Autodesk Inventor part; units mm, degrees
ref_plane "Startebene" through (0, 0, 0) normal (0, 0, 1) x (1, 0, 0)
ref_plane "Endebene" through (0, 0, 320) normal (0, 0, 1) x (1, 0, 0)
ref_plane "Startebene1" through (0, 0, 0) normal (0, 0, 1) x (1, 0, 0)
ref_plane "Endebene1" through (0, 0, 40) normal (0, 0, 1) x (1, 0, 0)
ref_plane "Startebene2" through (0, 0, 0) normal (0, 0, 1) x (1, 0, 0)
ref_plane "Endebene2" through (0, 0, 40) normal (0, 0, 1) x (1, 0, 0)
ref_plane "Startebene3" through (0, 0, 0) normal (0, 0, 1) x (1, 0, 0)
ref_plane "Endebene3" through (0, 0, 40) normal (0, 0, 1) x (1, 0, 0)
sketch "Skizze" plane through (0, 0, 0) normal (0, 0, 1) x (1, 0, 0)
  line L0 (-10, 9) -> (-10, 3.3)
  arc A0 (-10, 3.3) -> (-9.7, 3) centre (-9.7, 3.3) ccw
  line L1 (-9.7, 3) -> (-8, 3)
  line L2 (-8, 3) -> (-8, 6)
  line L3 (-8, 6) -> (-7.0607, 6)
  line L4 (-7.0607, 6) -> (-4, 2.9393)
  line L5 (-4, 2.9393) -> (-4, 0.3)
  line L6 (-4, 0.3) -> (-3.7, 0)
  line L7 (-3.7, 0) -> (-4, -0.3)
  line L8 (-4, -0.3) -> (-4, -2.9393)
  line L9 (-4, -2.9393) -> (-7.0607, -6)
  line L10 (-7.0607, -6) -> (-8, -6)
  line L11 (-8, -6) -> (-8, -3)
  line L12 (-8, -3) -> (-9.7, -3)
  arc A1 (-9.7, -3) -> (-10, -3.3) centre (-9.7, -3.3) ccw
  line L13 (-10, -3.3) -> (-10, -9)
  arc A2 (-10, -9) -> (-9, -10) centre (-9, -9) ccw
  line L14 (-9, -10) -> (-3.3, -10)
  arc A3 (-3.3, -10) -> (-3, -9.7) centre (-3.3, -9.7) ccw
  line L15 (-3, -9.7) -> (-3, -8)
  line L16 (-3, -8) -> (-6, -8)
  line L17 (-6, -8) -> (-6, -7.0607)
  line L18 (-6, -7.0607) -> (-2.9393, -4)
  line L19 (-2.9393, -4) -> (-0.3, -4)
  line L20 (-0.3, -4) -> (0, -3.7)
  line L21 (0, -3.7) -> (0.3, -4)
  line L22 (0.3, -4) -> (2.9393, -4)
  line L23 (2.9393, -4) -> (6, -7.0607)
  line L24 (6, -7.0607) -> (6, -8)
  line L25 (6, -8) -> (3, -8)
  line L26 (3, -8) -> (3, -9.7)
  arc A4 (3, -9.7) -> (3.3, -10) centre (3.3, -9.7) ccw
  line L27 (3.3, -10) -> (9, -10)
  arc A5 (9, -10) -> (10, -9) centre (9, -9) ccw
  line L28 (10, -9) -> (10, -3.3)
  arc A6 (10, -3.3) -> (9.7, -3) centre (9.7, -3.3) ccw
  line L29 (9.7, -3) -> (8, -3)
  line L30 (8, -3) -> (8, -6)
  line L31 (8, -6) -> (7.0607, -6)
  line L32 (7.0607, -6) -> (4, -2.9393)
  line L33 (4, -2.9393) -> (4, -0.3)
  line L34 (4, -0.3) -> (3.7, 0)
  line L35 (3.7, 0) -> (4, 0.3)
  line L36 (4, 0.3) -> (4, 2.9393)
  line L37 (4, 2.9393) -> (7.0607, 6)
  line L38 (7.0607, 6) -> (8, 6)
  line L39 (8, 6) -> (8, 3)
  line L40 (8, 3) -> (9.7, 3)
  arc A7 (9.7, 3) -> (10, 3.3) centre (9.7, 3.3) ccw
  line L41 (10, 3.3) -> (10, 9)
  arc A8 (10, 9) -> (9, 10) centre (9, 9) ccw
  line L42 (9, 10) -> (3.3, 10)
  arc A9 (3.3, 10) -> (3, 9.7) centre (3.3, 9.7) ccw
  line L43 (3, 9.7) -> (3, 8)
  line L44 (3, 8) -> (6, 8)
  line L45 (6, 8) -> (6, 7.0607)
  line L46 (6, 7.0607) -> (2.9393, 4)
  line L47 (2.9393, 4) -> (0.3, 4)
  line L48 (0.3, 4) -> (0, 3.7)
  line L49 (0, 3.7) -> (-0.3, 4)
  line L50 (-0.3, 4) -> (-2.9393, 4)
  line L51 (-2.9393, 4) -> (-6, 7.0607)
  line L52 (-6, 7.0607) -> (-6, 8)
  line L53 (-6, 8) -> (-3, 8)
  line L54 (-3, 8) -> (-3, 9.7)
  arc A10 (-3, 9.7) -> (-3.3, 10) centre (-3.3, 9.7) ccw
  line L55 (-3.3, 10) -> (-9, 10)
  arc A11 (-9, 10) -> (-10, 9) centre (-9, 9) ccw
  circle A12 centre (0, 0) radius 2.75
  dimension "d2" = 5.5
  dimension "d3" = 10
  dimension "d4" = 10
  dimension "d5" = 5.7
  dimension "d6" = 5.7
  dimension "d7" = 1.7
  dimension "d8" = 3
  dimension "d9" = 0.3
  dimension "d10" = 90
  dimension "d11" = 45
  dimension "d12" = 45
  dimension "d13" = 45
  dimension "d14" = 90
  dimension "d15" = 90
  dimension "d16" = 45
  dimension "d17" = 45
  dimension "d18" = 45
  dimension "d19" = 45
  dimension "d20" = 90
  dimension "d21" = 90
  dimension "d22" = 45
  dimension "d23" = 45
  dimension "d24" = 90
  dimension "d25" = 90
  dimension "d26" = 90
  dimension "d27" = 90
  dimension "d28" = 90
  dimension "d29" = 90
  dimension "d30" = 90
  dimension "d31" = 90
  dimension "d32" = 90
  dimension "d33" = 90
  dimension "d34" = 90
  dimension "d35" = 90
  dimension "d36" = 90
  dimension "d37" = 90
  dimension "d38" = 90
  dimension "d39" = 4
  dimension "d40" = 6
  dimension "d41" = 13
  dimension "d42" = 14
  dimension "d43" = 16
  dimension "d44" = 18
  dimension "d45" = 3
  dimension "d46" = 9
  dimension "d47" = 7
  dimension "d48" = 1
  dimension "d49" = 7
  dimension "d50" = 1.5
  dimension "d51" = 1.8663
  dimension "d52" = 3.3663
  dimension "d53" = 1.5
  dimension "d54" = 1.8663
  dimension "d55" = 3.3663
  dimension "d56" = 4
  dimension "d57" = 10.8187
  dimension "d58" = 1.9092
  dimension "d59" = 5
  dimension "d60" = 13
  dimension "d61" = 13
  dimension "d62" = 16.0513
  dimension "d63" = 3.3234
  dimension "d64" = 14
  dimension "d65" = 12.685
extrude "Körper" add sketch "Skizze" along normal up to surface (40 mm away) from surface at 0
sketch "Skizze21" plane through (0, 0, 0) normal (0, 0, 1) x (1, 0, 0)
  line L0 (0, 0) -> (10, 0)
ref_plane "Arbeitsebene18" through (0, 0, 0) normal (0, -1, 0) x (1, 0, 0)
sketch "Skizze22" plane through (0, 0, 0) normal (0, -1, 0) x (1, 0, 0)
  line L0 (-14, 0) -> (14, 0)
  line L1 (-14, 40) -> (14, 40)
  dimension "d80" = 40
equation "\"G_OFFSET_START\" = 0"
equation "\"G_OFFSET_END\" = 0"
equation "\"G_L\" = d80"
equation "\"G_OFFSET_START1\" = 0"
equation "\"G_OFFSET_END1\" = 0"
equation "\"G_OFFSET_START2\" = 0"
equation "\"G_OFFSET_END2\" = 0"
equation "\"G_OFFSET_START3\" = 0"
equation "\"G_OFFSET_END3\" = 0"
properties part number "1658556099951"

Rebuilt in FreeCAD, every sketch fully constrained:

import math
import FreeCAD as App
import Part
import Sketcher

V = App.Vector
Q = App.Units.Quantity

doc = App.newDocument("Part")
body = doc.addObject("PartDesign::Body", "Body")

# Sketch on XY plane
sketch1 = doc.addObject("Sketcher::SketchObject", "Sketch")
body.addObject(sketch1)
sketch1.AttachmentSupport = (doc.XY_Plane, [""])
sketch1.MapMode = "FlatFace"
sketch1.addGeometry(Part.ArcOfCircle(Part.Circle(V(-9, 9, 0), V(0, 0, 1), 1), math.radians(90), math.radians(180)), False)
sketch1.addGeometry(Part.LineSegment(V(-10, 9, 0), V(-10, 3.3, 0)), False)
sketch1.addGeometry(Part.ArcOfCircle(Part.Circle(V(-9.7, 3.3, 0), V(0, 0, 1), 0.3), math.radians(180), math.radians(270)), False)
sketch1.addGeometry(Part.LineSegment(V(-9.7, 3, 0), V(-8, 3, 0)), False)
sketch1.addGeometry(Part.LineSegment(V(-8, 3, 0), V(-8, 6, 0)), False)
sketch1.addGeometry(Part.LineSegment(V(-8, 6, 0), V(-7.06, 6, 0)), False)
sketch1.addGeometry(Part.LineSegment(V(-7.06, 6, 0), V(-4, 2.94, 0)), False)
sketch1.addGeometry(Part.LineSegment(V(-4, 2.94, 0), V(-4, 0.3, 0)), False)
sketch1.addGeometry(Part.LineSegment(V(-4, 0.3, 0), V(-3.7, 0, 0)), False)
sketch1.addGeometry(Part.LineSegment(V(-3.7, 0, 0), V(-4, -0.3, 0)), False)
sketch1.addGeometry(Part.LineSegment(V(-4, -0.3, 0), V(-4, -2.94, 0)), False)
sketch1.addGeometry(Part.LineSegment(V(-4, -2.94, 0), V(-7.06, -6, 0)), False)
sketch1.addGeometry(Part.LineSegment(V(-7.06, -6, 0), V(-8, -6, 0)), False)
sketch1.addGeometry(Part.LineSegment(V(-8, -6, 0), V(-8, -3, 0)), False)
sketch1.addGeometry(Part.LineSegment(V(-8, -3, 0), V(-9.7, -3, 0)), False)
sketch1.addGeometry(Part.ArcOfCircle(Part.Circle(V(-9.7, -3.3, 0), V(0, 0, 1), 0.3), math.radians(90), math.radians(180)), False)
sketch1.addGeometry(Part.LineSegment(V(-10, -3.3, 0), V(-10, -9, 0)), False)
sketch1.addGeometry(Part.ArcOfCircle(Part.Circle(V(-9, -9, 0), V(0, 0, 1), 1), math.radians(180), math.radians(270)), False)
sketch1.addGeometry(Part.LineSegment(V(-9, -10, 0), V(-3.3, -10, 0)), False)
sketch1.addGeometry(Part.ArcOfCircle(Part.Circle(V(-3.3, -9.7, 0), V(0, 0, 1), 0.3), math.radians(-90), math.radians(0)), False)
sketch1.addGeometry(Part.LineSegment(V(-3, -9.7, 0), V(-3, -8, 0)), False)
sketch1.addGeometry(Part.LineSegment(V(-3, -8, 0), V(-6, -8, 0)), False)
sketch1.addGeometry(Part.LineSegment(V(-6, -8, 0), V(-6, -7.06, 0)), False)
sketch1.addGeometry(Part.LineSegment(V(-6, -7.06, 0), V(-2.94, -4, 0)), False)
sketch1.addGeometry(Part.LineSegment(V(-2.94, -4, 0), V(-0.3, -4, 0)), False)
sketch1.addGeometry(Part.LineSegment(V(-0.3, -4, 0), V(0, -3.7, 0)), False)
sketch1.addGeometry(Part.LineSegment(V(0, -3.7, 0), V(0.3, -4, 0)), False)
sketch1.addGeometry(Part.LineSegment(V(0.3, -4, 0), V(2.94, -4, 0)), False)
sketch1.addGeometry(Part.LineSegment(V(2.94, -4, 0), V(6, -7.06, 0)), False)
sketch1.addGeometry(Part.LineSegment(V(6, -7.06, 0), V(6, -8, 0)), False)
sketch1.addGeometry(Part.LineSegment(V(6, -8, 0), V(3, -8, 0)), False)
sketch1.addGeometry(Part.LineSegment(V(3, -8, 0), V(3, -9.7, 0)), False)
sketch1.addGeometry(Part.ArcOfCircle(Part.Circle(V(3.3, -9.7, 0), V(0, 0, 1), 0.3), math.radians(180), math.radians(270)), False)
sketch1.addGeometry(Part.LineSegment(V(3.3, -10, 0), V(9, -10, 0)), False)
sketch1.addGeometry(Part.ArcOfCircle(Part.Circle(V(9, -9, 0), V(0, 0, 1), 1), math.radians(-90), math.radians(0)), False)
sketch1.addGeometry(Part.LineSegment(V(10, -9, 0), V(10, -3.3, 0)), False)
sketch1.addGeometry(Part.ArcOfCircle(Part.Circle(V(9.7, -3.3, 0), V(0, 0, 1), 0.3), math.radians(0), math.radians(90)), False)
sketch1.addGeometry(Part.LineSegment(V(9.7, -3, 0), V(8, -3, 0)), False)
sketch1.addGeometry(Part.LineSegment(V(8, -3, 0), V(8, -6, 0)), False)
sketch1.addGeometry(Part.LineSegment(V(8, -6, 0), V(7.06, -6, 0)), False)
sketch1.addGeometry(Part.LineSegment(V(7.06, -6, 0), V(4, -2.94, 0)), False)
sketch1.addGeometry(Part.LineSegment(V(4, -2.94, 0), V(4, -0.3, 0)), False)
sketch1.addGeometry(Part.LineSegment(V(4, -0.3, 0), V(3.7, 0, 0)), False)
sketch1.addGeometry(Part.LineSegment(V(3.7, 0, 0), V(4, 0.3, 0)), False)
sketch1.addGeometry(Part.LineSegment(V(4, 0.3, 0), V(4, 2.94, 0)), False)
sketch1.addGeometry(Part.LineSegment(V(4, 2.94, 0), V(7.06, 6, 0)), False)
sketch1.addGeometry(Part.LineSegment(V(7.06, 6, 0), V(8, 6, 0)), False)
sketch1.addGeometry(Part.LineSegment(V(8, 6, 0), V(8, 3, 0)), False)
sketch1.addGeometry(Part.LineSegment(V(8, 3, 0), V(9.7, 3, 0)), False)
sketch1.addGeometry(Part.ArcOfCircle(Part.Circle(V(9.7, 3.3, 0), V(0, 0, 1), 0.3), math.radians(-90), math.radians(0)), False)
sketch1.addGeometry(Part.LineSegment(V(10, 3.3, 0), V(10, 9, 0)), False)
sketch1.addGeometry(Part.ArcOfCircle(Part.Circle(V(9, 9, 0), V(0, 0, 1), 1), math.radians(0), math.radians(90)), False)
sketch1.addGeometry(Part.LineSegment(V(9, 10, 0), V(3.3, 10, 0)), False)
sketch1.addGeometry(Part.ArcOfCircle(Part.Circle(V(3.3, 9.7, 0), V(0, 0, 1), 0.3), math.radians(90), math.radians(180)), False)
sketch1.addGeometry(Part.LineSegment(V(3, 9.7, 0), V(3, 8, 0)), False)
sketch1.addGeometry(Part.LineSegment(V(3, 8, 0), V(6, 8, 0)), False)
sketch1.addGeometry(Part.LineSegment(V(6, 8, 0), V(6, 7.06, 0)), False)
sketch1.addGeometry(Part.LineSegment(V(6, 7.06, 0), V(2.94, 4, 0)), False)
sketch1.addGeometry(Part.LineSegment(V(2.94, 4, 0), V(0.3, 4, 0)), False)
sketch1.addGeometry(Part.LineSegment(V(0.3, 4, 0), V(0, 3.7, 0)), False)
sketch1.addGeometry(Part.LineSegment(V(0, 3.7, 0), V(-0.3, 4, 0)), False)
sketch1.addGeometry(Part.LineSegment(V(-0.3, 4, 0), V(-2.94, 4, 0)), False)
sketch1.addGeometry(Part.LineSegment(V(-2.94, 4, 0), V(-6, 7.06, 0)), False)
sketch1.addGeometry(Part.LineSegment(V(-6, 7.06, 0), V(-6, 8, 0)), False)
sketch1.addGeometry(Part.LineSegment(V(-6, 8, 0), V(-3, 8, 0)), False)
sketch1.addGeometry(Part.LineSegment(V(-3, 8, 0), V(-3, 9.7, 0)), False)
sketch1.addGeometry(Part.ArcOfCircle(Part.Circle(V(-3.3, 9.7, 0), V(0, 0, 1), 0.3), math.radians(0), math.radians(90)), False)
sketch1.addGeometry(Part.LineSegment(V(-3.3, 10, 0), V(-9, 10, 0)), False)
sketch1.addGeometry(Part.Circle(V(0, 0, 0), V(0, 0, 1), 2.75), False)
sketch1.addConstraint(Sketcher.Constraint("Tangent", 0, 2, 1, 1))
sketch1.addConstraint(Sketcher.Constraint("Tangent", 1, 2, 2, 1))
sketch1.addConstraint(Sketcher.Constraint("Tangent", 2, 2, 3, 1))
sketch1.addConstraint(Sketcher.Constraint("Coincident", 3, 2, 4, 1))
sketch1.addConstraint(Sketcher.Constraint("Coincident", 4, 2, 5, 1))
sketch1.addConstraint(Sketcher.Constraint("Coincident", 5, 2, 6, 1))
sketch1.addConstraint(Sketcher.Constraint("Coincident", 6, 2, 7, 1))
sketch1.addConstraint(Sketcher.Constraint("Coincident", 7, 2, 8, 1))
sketch1.addConstraint(Sketcher.Constraint("Coincident", 8, 2, 9, 1))
sketch1.addConstraint(Sketcher.Constraint("Coincident", 9, 2, 10, 1))
sketch1.addConstraint(Sketcher.Constraint("Coincident", 10, 2, 11, 1))
sketch1.addConstraint(Sketcher.Constraint("Coincident", 11, 2, 12, 1))
sketch1.addConstraint(Sketcher.Constraint("Coincident", 12, 2, 13, 1))
sketch1.addConstraint(Sketcher.Constraint("Coincident", 13, 2, 14, 1))
sketch1.addConstraint(Sketcher.Constraint("Tangent", 14, 2, 15, 1))
sketch1.addConstraint(Sketcher.Constraint("Tangent", 15, 2, 16, 1))
sketch1.addConstraint(Sketcher.Constraint("Tangent", 16, 2, 17, 1))
sketch1.addConstraint(Sketcher.Constraint("Tangent", 17, 2, 18, 1))
sketch1.addConstraint(Sketcher.Constraint("Tangent", 18, 2, 19, 1))
sketch1.addConstraint(Sketcher.Constraint("Tangent", 19, 2, 20, 1))
sketch1.addConstraint(Sketcher.Constraint("Coincident", 20, 2, 21, 1))
sketch1.addConstraint(Sketcher.Constraint("Coincident", 21, 2, 22, 1))
sketch1.addConstraint(Sketcher.Constraint("Coincident", 22, 2, 23, 1))
sketch1.addConstraint(Sketcher.Constraint("Coincident", 23, 2, 24, 1))
sketch1.addConstraint(Sketcher.Constraint("Coincident", 24, 2, 25, 1))
sketch1.addConstraint(Sketcher.Constraint("Coincident", 25, 2, 26, 1))
sketch1.addConstraint(Sketcher.Constraint("Coincident", 26, 2, 27, 1))
sketch1.addConstraint(Sketcher.Constraint("Coincident", 27, 2, 28, 1))
sketch1.addConstraint(Sketcher.Constraint("Coincident", 28, 2, 29, 1))
sketch1.addConstraint(Sketcher.Constraint("Coincident", 29, 2, 30, 1))
sketch1.addConstraint(Sketcher.Constraint("Coincident", 30, 2, 31, 1))
sketch1.addConstraint(Sketcher.Constraint("Tangent", 31, 2, 32, 1))
sketch1.addConstraint(Sketcher.Constraint("Tangent", 32, 2, 33, 1))
sketch1.addConstraint(Sketcher.Constraint("Tangent", 33, 2, 34, 1))
sketch1.addConstraint(Sketcher.Constraint("Tangent", 34, 2, 35, 1))
sketch1.addConstraint(Sketcher.Constraint("Tangent", 35, 2, 36, 1))
sketch1.addConstraint(Sketcher.Constraint("Tangent", 36, 2, 37, 1))
sketch1.addConstraint(Sketcher.Constraint("Coincident", 37, 2, 38, 1))
sketch1.addConstraint(Sketcher.Constraint("Coincident", 38, 2, 39, 1))
sketch1.addConstraint(Sketcher.Constraint("Coincident", 39, 2, 40, 1))
sketch1.addConstraint(Sketcher.Constraint("Coincident", 40, 2, 41, 1))
sketch1.addConstraint(Sketcher.Constraint("Coincident", 41, 2, 42, 1))
sketch1.addConstraint(Sketcher.Constraint("Coincident", 42, 2, 43, 1))
sketch1.addConstraint(Sketcher.Constraint("Coincident", 43, 2, 44, 1))
sketch1.addConstraint(Sketcher.Constraint("Coincident", 44, 2, 45, 1))
sketch1.addConstraint(Sketcher.Constraint("Coincident", 45, 2, 46, 1))
sketch1.addConstraint(Sketcher.Constraint("Coincident", 46, 2, 47, 1))
sketch1.addConstraint(Sketcher.Constraint("Coincident", 47, 2, 48, 1))
sketch1.addConstraint(Sketcher.Constraint("Tangent", 48, 2, 49, 1))
sketch1.addConstraint(Sketcher.Constraint("Tangent", 49, 2, 50, 1))
sketch1.addConstraint(Sketcher.Constraint("Tangent", 50, 2, 51, 1))
sketch1.addConstraint(Sketcher.Constraint("Tangent", 51, 2, 52, 1))
sketch1.addConstraint(Sketcher.Constraint("Tangent", 52, 2, 53, 1))
sketch1.addConstraint(Sketcher.Constraint("Tangent", 53, 2, 54, 1))
sketch1.addConstraint(Sketcher.Constraint("Coincident", 54, 2, 55, 1))
sketch1.addConstraint(Sketcher.Constraint("Coincident", 55, 2, 56, 1))
sketch1.addConstraint(Sketcher.Constraint("Coincident", 56, 2, 57, 1))
sketch1.addConstraint(Sketcher.Constraint("Coincident", 57, 2, 58, 1))
sketch1.addConstraint(Sketcher.Constraint("Coincident", 58, 2, 59, 1))
sketch1.addConstraint(Sketcher.Constraint("Coincident", 59, 2, 60, 1))
sketch1.addConstraint(Sketcher.Constraint("Coincident", 60, 2, 61, 1))
sketch1.addConstraint(Sketcher.Constraint("Coincident", 61, 2, 62, 1))
sketch1.addConstraint(Sketcher.Constraint("Coincident", 62, 2, 63, 1))
sketch1.addConstraint(Sketcher.Constraint("Coincident", 63, 2, 64, 1))
sketch1.addConstraint(Sketcher.Constraint("Coincident", 64, 2, 65, 1))
sketch1.addConstraint(Sketcher.Constraint("Tangent", 65, 2, 66, 1))
sketch1.addConstraint(Sketcher.Constraint("Tangent", 66, 2, 67, 1))
sketch1.addConstraint(Sketcher.Constraint("Tangent", 67, 2, 0, 1))
sketch1.addConstraint(Sketcher.Constraint("Vertical", 1))
sketch1.addConstraint(Sketcher.Constraint("Horizontal", 3))
sketch1.addConstraint(Sketcher.Constraint("Vertical", 4))
sketch1.addConstraint(Sketcher.Constraint("Horizontal", 5))
sketch1.addConstraint(Sketcher.Constraint("Vertical", 7))
sketch1.addConstraint(Sketcher.Constraint("Vertical", 10))
sketch1.addConstraint(Sketcher.Constraint("Horizontal", 12))
sketch1.addConstraint(Sketcher.Constraint("Vertical", 13))
sketch1.addConstraint(Sketcher.Constraint("Horizontal", 14))
sketch1.addConstraint(Sketcher.Constraint("Vertical", 16))
sketch1.addConstraint(Sketcher.Constraint("Horizontal", 18))
sketch1.addConstraint(Sketcher.Constraint("Vertical", 20))
sketch1.addConstraint(Sketcher.Constraint("Horizontal", 21))
sketch1.addConstraint(Sketcher.Constraint("Vertical", 22))
sketch1.addConstraint(Sketcher.Constraint("Horizontal", 24))
sketch1.addConstraint(Sketcher.Constraint("Horizontal", 27))
sketch1.addConstraint(Sketcher.Constraint("Vertical", 29))
sketch1.addConstraint(Sketcher.Constraint("Horizontal", 30))
sketch1.addConstraint(Sketcher.Constraint("Vertical", 31))
sketch1.addConstraint(Sketcher.Constraint("Horizontal", 33))
sketch1.addConstraint(Sketcher.Constraint("Vertical", 35))
sketch1.addConstraint(Sketcher.Constraint("Horizontal", 37))
sketch1.addConstraint(Sketcher.Constraint("Vertical", 38))
sketch1.addConstraint(Sketcher.Constraint("Horizontal", 39))
sketch1.addConstraint(Sketcher.Constraint("Vertical", 41))
sketch1.addConstraint(Sketcher.Constraint("Vertical", 44))
sketch1.addConstraint(Sketcher.Constraint("Horizontal", 46))
sketch1.addConstraint(Sketcher.Constraint("Vertical", 47))
sketch1.addConstraint(Sketcher.Constraint("Horizontal", 48))
sketch1.addConstraint(Sketcher.Constraint("Vertical", 50))
sketch1.addConstraint(Sketcher.Constraint("Horizontal", 52))
sketch1.addConstraint(Sketcher.Constraint("Vertical", 54))
sketch1.addConstraint(Sketcher.Constraint("Horizontal", 55))
sketch1.addConstraint(Sketcher.Constraint("Vertical", 56))
sketch1.addConstraint(Sketcher.Constraint("Horizontal", 58))
sketch1.addConstraint(Sketcher.Constraint("Horizontal", 61))
sketch1.addConstraint(Sketcher.Constraint("Vertical", 63))
sketch1.addConstraint(Sketcher.Constraint("Horizontal", 64))
sketch1.addConstraint(Sketcher.Constraint("Vertical", 65))
sketch1.addConstraint(Sketcher.Constraint("Horizontal", 67))
sketch1.addConstraint(Sketcher.Constraint("Coincident", 68, 3, -1, 1))
sketch1.addConstraint(Sketcher.Constraint("Equal", 2, 15))
sketch1.addConstraint(Sketcher.Constraint("Equal", 0, 17))
sketch1.addConstraint(Sketcher.Constraint("Equal", 15, 19))
sketch1.addConstraint(Sketcher.Constraint("Equal", 19, 32))
sketch1.addConstraint(Sketcher.Constraint("Equal", 17, 34))
sketch1.addConstraint(Sketcher.Constraint("Equal", 32, 36))
sketch1.addConstraint(Sketcher.Constraint("Equal", 36, 49))
sketch1.addConstraint(Sketcher.Constraint("Equal", 34, 51))
sketch1.addConstraint(Sketcher.Constraint("Equal", 49, 53))
sketch1.addConstraint(Sketcher.Constraint("Equal", 53, 66))
sketch1.addConstraint(Sketcher.Constraint("Symmetric", 0, 3, 34, 3, -1, 1))
sketch1.addConstraint(Sketcher.Constraint("Symmetric", 15, 3, 49, 3, -1, 1))
sketch1.addConstraint(Sketcher.Constraint("Symmetric", 19, 3, 53, 3, -1, 1))
sketch1.addConstraint(Sketcher.Constraint("Symmetric", 3, 2, 37, 2, -1, 1))
sketch1.addConstraint(Sketcher.Constraint("Symmetric", 5, 2, 39, 2, -1, 1))
sketch1.addConstraint(Sketcher.Constraint("Symmetric", 6, 2, 40, 2, -1, 1))
sketch1.addConstraint(Sketcher.Constraint("Symmetric", 8, 2, 42, 2, -1, 1))
sketch1.addConstraint(Sketcher.Constraint("Symmetric", 9, 2, 43, 2, -1, 1))
sketch1.addConstraint(Sketcher.Constraint("Symmetric", 11, 2, 45, 2, -1, 1))
sketch1.addConstraint(Sketcher.Constraint("Symmetric", 21, 2, 55, 2, -1, 1))
sketch1.addConstraint(Sketcher.Constraint("Symmetric", 23, 2, 57, 2, -1, 1))
sketch1.addConstraint(Sketcher.Constraint("Symmetric", 25, 2, 59, 2, -1, 1))
sketch1.addConstraint(Sketcher.Constraint("Symmetric", 26, 2, 60, 2, -1, 1))
sketch1.addConstraint(Sketcher.Constraint("Symmetric", 28, 2, 62, 2, -1, 1))
sketch1.addConstraint(Sketcher.Constraint("Symmetric", 30, 2, 64, 2, -1, 1))
sketch1.addConstraint(Sketcher.Constraint("Symmetric", 19, 3, 32, 3, -2))
sketch1.addConstraint(Sketcher.Constraint("Symmetric", 15, 3, 36, 3, -2))
sketch1.addConstraint(Sketcher.Constraint("Symmetric", 24, 2, 26, 2, -2))
sketch1.addConstraint(Sketcher.Constraint("Symmetric", 22, 2, 28, 2, -2))
sketch1.addConstraint(Sketcher.Constraint("Symmetric", 12, 2, 38, 2, -2))
sketch1.addConstraint(Sketcher.Constraint("Symmetric", 10, 2, 40, 2, -2))
sketch1.addConstraint(Sketcher.Constraint("PointOnObject", 8, 2, -1))
sketch1.addConstraint(Sketcher.Constraint("PointOnObject", 25, 2, -2))
sketch1.addConstraint(Sketcher.Constraint("Parallel", 6, 8))
sketch1.addConstraint(Sketcher.Constraint("Perpendicular", 8, 9))
sketch1.addConstraint(Sketcher.Constraint("Parallel", 9, 11))
sketch1.addConstraint(Sketcher.Constraint("Parallel", 11, 23))
sketch1.addConstraint(Sketcher.Constraint("Parallel", 23, 25))
sketch1.addConstraint(Sketcher.Constraint("Perpendicular", 25, 26))
sketch1.addConstraint(Sketcher.Constraint("Parallel", 26, 28))
sketch1.addConstraint(Sketcher.Constraint("Parallel", 40, 42))
sketch1.addConstraint(Sketcher.Constraint("Parallel", 43, 45))
sketch1.addConstraint(Sketcher.Constraint("Parallel", 45, 57))
sketch1.addConstraint(Sketcher.Constraint("Parallel", 57, 59))
sketch1.addConstraint(Sketcher.Constraint("Parallel", 60, 62))
sketch1.addConstraint(Sketcher.Constraint("Horizontal", 21, 2, 29, 2))
sketch1.addConstraint(Sketcher.Constraint("Vertical", 38, 2, 46, 2))
sketch1.addConstraint(Sketcher.Constraint("Equal", 67, 1))
sketch1.addConstraint(Sketcher.Constraint("Equal", 64, 4))
sketch1.addConstraint(Sketcher.Constraint("Equal", 61, 7))
sketch1.addConstraint(Sketcher.Constraint("Equal", 48, 20))
sketch1.addConstraint(Sketcher.Constraint("Equal", 46, 22))
sketch1.addConstraint(Sketcher.Constraint("Equal", 11, 23))
sketch1.addConstraint(Sketcher.Constraint("Equal", 9, 25))
sketch1.addConstraint(Sketcher.Constraint("Radius", 0, Q("1 mm")))
sketch1.addConstraint(Sketcher.Constraint("Diameter", 68, Q("5.5 mm")))
sketch1.addConstraint(Sketcher.Constraint("Radius", 2, Q("0.3 mm")))
sketch1.addConstraint(Sketcher.Constraint("DistanceX", 21, 2, 21, 1, Q("3 mm")))
sketch1.addConstraint(Sketcher.Constraint("DistanceX", 3, 1, 3, 2, Q("1.7 mm")))
sketch1.addConstraint(Sketcher.Constraint("DistanceX", 18, 1, 18, 2, Q("5.7 mm")))
sketch1.addConstraint(Sketcher.Constraint("DistanceX", 0, 3, -1, 1, Q("9 mm")))
sketch1.addConstraint(Sketcher.Constraint("DistanceX", 6, 2, -1, 1, Q("4 mm")))
sketch1.addConstraint(Sketcher.Constraint("DistanceY", -1, 1, 7, 2, Q("0.3 mm")))
sketch1.addConstraint(Sketcher.Constraint("DistanceX", 5, 1, 5, 2, Q("0.9393 mm")))
pad1 = doc.addObject("PartDesign::Pad", "Pad")
body.addObject(pad1)
pad1.Profile = sketch1
pad1.Length = 40

doc.recompute()
